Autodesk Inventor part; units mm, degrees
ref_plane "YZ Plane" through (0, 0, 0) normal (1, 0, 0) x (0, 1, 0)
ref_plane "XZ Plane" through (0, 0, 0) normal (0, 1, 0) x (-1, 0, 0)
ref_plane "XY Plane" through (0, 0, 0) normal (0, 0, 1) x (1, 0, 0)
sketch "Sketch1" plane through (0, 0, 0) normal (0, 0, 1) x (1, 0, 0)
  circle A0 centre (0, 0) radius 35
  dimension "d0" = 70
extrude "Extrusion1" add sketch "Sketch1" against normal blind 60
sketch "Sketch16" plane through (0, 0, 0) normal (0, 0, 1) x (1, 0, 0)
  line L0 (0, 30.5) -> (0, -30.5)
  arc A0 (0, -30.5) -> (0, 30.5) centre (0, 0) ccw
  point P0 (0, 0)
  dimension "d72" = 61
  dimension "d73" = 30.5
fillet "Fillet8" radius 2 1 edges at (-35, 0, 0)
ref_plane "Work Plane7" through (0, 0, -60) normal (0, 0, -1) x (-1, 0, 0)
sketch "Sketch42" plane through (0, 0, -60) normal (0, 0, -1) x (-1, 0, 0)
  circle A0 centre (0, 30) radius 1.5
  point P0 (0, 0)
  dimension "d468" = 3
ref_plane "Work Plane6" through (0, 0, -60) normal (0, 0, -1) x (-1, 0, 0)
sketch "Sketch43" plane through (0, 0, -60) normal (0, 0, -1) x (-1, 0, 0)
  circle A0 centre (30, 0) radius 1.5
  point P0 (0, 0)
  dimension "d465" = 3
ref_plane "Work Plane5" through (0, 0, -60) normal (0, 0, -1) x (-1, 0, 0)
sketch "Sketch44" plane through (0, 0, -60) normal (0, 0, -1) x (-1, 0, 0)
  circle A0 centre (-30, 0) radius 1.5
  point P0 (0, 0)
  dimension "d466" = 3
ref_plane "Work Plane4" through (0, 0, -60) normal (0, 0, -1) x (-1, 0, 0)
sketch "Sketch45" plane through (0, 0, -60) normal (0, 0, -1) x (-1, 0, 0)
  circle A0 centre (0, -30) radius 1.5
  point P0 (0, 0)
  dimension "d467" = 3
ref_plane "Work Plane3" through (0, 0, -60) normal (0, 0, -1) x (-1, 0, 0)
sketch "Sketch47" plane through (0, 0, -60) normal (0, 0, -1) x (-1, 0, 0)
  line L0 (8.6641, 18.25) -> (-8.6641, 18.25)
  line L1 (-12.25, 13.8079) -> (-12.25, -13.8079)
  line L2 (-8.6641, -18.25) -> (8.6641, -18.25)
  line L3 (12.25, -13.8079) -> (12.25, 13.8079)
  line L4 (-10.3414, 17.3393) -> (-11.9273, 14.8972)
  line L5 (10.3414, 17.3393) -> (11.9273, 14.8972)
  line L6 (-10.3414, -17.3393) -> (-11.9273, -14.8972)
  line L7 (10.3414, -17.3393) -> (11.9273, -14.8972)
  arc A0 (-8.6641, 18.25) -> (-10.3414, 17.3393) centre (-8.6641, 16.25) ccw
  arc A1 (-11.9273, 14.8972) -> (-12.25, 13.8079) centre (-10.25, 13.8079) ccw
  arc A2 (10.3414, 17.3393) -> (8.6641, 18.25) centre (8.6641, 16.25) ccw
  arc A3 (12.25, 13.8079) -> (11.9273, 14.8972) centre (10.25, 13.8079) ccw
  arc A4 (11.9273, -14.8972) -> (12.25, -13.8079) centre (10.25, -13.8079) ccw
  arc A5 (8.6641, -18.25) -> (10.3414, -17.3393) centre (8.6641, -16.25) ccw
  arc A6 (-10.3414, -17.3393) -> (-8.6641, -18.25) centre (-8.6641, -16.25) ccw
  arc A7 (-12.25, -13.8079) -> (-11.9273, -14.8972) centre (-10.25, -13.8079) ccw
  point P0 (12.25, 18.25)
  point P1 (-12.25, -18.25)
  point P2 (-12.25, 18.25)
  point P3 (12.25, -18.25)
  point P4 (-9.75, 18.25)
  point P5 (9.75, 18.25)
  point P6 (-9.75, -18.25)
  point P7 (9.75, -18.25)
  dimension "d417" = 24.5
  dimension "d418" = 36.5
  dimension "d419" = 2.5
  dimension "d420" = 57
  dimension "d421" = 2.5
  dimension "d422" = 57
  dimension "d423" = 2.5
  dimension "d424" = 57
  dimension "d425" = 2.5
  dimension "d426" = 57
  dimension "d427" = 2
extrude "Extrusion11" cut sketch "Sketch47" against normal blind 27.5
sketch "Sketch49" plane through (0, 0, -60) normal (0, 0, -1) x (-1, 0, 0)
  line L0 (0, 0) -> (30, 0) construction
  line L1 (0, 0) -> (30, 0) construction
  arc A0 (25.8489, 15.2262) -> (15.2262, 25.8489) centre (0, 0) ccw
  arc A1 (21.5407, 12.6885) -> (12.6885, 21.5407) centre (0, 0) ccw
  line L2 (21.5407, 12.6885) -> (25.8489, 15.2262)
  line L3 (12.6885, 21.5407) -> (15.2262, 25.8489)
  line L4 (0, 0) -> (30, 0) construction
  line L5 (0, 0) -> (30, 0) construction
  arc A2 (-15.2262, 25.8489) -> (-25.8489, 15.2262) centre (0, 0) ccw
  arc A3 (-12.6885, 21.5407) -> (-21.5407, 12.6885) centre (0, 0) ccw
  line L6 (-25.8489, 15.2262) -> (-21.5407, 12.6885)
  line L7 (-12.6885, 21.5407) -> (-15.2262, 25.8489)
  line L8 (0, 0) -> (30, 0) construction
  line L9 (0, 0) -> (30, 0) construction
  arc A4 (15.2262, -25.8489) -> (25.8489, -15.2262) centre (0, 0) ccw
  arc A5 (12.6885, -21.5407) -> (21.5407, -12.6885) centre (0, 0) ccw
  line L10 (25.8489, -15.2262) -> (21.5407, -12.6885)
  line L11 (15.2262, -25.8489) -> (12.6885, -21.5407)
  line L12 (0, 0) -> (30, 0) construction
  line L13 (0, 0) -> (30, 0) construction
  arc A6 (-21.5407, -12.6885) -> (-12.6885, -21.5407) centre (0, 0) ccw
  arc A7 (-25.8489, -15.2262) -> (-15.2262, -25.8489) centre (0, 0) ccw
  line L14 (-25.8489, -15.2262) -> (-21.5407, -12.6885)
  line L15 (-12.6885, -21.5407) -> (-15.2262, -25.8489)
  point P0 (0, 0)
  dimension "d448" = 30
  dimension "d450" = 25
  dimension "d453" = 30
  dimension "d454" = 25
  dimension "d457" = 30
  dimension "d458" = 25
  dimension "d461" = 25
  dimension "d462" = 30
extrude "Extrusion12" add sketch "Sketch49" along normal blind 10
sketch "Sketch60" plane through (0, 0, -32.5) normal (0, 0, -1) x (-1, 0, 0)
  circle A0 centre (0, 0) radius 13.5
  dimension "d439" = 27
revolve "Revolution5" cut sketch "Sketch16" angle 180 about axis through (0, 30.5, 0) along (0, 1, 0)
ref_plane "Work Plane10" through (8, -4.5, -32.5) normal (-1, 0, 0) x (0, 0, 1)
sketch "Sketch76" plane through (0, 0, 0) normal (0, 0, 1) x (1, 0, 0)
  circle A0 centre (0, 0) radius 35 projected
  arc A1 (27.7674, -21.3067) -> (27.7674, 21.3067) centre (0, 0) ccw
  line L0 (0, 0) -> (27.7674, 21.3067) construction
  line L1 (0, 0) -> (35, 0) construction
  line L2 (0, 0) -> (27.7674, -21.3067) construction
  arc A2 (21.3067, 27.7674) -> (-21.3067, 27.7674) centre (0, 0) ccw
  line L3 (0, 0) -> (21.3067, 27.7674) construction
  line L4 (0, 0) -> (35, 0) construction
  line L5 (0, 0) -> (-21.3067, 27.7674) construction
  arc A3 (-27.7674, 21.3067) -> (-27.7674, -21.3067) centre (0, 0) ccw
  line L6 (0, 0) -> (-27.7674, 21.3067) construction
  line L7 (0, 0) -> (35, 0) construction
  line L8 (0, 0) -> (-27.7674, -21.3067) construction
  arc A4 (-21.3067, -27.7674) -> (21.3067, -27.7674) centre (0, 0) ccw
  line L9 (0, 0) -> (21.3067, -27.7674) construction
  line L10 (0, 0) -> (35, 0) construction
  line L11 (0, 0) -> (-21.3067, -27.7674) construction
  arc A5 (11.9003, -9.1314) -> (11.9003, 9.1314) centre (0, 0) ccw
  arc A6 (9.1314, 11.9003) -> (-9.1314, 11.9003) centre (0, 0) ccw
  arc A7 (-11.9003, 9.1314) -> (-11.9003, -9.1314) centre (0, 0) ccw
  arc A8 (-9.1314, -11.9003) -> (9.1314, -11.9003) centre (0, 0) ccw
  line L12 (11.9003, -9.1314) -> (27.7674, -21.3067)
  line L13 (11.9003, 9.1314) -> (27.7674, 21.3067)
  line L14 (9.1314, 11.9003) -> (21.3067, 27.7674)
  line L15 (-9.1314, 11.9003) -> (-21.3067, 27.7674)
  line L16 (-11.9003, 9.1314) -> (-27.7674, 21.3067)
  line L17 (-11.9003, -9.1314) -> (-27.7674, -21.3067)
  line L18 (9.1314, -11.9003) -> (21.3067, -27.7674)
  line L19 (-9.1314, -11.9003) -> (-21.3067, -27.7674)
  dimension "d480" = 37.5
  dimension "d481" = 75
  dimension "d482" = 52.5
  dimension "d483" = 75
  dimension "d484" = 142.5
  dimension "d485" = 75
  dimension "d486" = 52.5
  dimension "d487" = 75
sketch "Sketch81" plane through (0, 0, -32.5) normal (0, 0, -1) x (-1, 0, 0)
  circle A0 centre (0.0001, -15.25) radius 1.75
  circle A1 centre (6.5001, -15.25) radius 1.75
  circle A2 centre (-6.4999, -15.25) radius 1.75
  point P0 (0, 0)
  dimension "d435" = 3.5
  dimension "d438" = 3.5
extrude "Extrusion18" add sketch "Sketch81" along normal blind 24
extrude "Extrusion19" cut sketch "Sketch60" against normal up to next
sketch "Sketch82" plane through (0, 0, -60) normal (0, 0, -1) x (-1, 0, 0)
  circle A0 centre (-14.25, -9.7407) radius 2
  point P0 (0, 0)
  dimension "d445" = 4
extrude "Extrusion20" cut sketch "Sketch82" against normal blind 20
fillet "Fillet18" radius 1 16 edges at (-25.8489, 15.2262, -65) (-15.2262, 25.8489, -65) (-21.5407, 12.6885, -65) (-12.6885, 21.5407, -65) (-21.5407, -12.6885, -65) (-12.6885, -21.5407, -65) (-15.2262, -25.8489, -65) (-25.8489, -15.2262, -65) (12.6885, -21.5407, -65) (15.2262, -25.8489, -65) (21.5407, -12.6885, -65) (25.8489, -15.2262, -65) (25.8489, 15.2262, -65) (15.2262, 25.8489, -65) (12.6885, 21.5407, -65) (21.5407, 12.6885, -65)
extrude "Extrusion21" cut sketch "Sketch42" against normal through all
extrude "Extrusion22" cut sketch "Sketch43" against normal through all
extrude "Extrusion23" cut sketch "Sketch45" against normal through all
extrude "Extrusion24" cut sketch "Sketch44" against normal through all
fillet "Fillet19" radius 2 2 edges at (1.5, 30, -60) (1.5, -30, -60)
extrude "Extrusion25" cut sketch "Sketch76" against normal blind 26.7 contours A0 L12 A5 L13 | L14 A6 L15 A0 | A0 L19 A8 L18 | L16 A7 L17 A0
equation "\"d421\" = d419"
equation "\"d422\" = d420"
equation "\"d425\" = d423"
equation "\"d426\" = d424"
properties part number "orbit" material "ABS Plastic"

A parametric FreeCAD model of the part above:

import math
import FreeCAD as App
import Part
import Sketcher
from FreeCAD import Vector
Q = App.Units.Quantity


def edges_at(feature, points):
    """Names of the edges that pass closest to the given points."""
    edges = feature.Shape.Edges
    near = lambda p: min(range(len(edges)), key=lambda i: edges[i].distToShape(Part.Vertex(*p))[0])
    return sorted({f"Edge{near(p) + 1}" for p in points})

doc = App.newDocument("Part")
body = doc.addObject("PartDesign::Body", "Body")

# Sketch on XY plane
sketch1 = doc.addObject("Sketcher::SketchObject", "Sketch")
body.addObject(sketch1)
sketch1.AttachmentSupport = (doc.XY_Plane, [""])
sketch1.MapMode = "FlatFace"
sketch1.addGeometry(Part.Circle(Vector(0, 0, 0), Vector(0, 0, 1), 35), False)
sketch1.addConstraint([
    Sketcher.Constraint("Coincident", 0, 3, -1, 1),
    Sketcher.Constraint("Diameter", 0, 70.0),
])
pad1 = doc.addObject("PartDesign::Pad", "Pad")
body.addObject(pad1)
pad1.Profile = sketch1
pad1.Length = 60
pad1.Reversed = True
doc.recompute()

fillet = doc.addObject("PartDesign::Fillet", "Fillet")
body.addObject(fillet)
fillet.Base = (pad1, edges_at(pad1, [(-35, 0, 0)]))
fillet.Radius = 2

# Sketch on XY plane
sketch2 = doc.addObject("Sketcher::SketchObject", "Sketch001")
body.addObject(sketch2)
sketch2.AttachmentSupport = (doc.XY_Plane, [""])
sketch2.MapMode = "FlatFace"
sketch2.AttachmentOffset = App.Placement(Vector(0, 0, -60), App.Rotation())
sketch2.addGeometry([
    Part.ArcOfCircle(Part.Circle(Vector(-8.7, 16.2, 0), Vector(0, 0, 1), 2), math.radians(90), math.radians(147)),  # 0
    Part.LineSegment(Vector(-8.7, 18.2, 0), Vector(8.7, 18.2, 0)),  # 1
    Part.ArcOfCircle(Part.Circle(Vector(8.7, 16.2, 0), Vector(0, 0, 1), 2), math.radians(33), math.radians(90)),  # 2
    Part.LineSegment(Vector(10.3, 17.3, 0), Vector(11.9, 14.9, 0)),  # 3
    Part.ArcOfCircle(Part.Circle(Vector(10.2, 13.8, 0), Vector(0, 0, 1), 2), math.radians(0), math.radians(33)),  # 4
    Part.LineSegment(Vector(12.2, 13.8, 0), Vector(12.2, -13.8, 0)),  # 5
    Part.ArcOfCircle(Part.Circle(Vector(10.2, -13.8, 0), Vector(0, 0, 1), 2), math.radians(-33), math.radians(0)),  # 6
    Part.LineSegment(Vector(11.9, -14.9, 0), Vector(10.3, -17.3, 0)),  # 7
    Part.ArcOfCircle(Part.Circle(Vector(8.7, -16.2, 0), Vector(0, 0, 1), 2), math.radians(-90), math.radians(-33)),  # 8
    Part.LineSegment(Vector(8.7, -18.2, 0), Vector(-8.7, -18.2, 0)),  # 9
    Part.ArcOfCircle(Part.Circle(Vector(-8.7, -16.2, 0), Vector(0, 0, 1), 2), math.radians(-147), math.radians(-90)),  # 10
    Part.LineSegment(Vector(-10.3, -17.3, 0), Vector(-11.9, -14.9, 0)),  # 11
    Part.ArcOfCircle(Part.Circle(Vector(-10.2, -13.8, 0), Vector(0, 0, 1), 2), math.radians(180), math.radians(213)),  # 12
    Part.LineSegment(Vector(-12.2, -13.8, 0), Vector(-12.2, 13.8, 0)),  # 13
    Part.ArcOfCircle(Part.Circle(Vector(-10.2, 13.8, 0), Vector(0, 0, 1), 2), math.radians(147), math.radians(180)),  # 14
    Part.LineSegment(Vector(-11.9, 14.9, 0), Vector(-10.3, 17.3, 0)),  # 15
], False)
sketch2.addConstraint([
    Sketcher.Constraint("Tangent", 0, 1, 1, 1),
    Sketcher.Constraint("Tangent", 1, 2, 2, 2),
    Sketcher.Constraint("Tangent", 2, 1, 3, 1),
    Sketcher.Constraint("Tangent", 3, 2, 4, 2),
    Sketcher.Constraint("Tangent", 4, 1, 5, 1),
    Sketcher.Constraint("Tangent", 5, 2, 6, 2),
    Sketcher.Constraint("Tangent", 6, 1, 7, 1),
    Sketcher.Constraint("Tangent", 7, 2, 8, 2),
    Sketcher.Constraint("Tangent", 8, 1, 9, 1),
    Sketcher.Constraint("Tangent", 9, 2, 10, 2),
    Sketcher.Constraint("Tangent", 10, 1, 11, 1),
    Sketcher.Constraint("Tangent", 11, 2, 12, 2),
    Sketcher.Constraint("Tangent", 12, 1, 13, 1),
    Sketcher.Constraint("Tangent", 13, 2, 14, 2),
    Sketcher.Constraint("Tangent", 14, 1, 15, 1),
    Sketcher.Constraint("Tangent", 15, 2, 0, 2),
    Sketcher.Constraint("Horizontal", 1),
    Sketcher.Constraint("Vertical", 5),
    Sketcher.Constraint("Horizontal", 9),
    Sketcher.Constraint("Vertical", 13),
    Sketcher.Constraint("Equal", 0, 2),
    Sketcher.Constraint("Equal", 2, 4),
    Sketcher.Constraint("Equal", 4, 6),
    Sketcher.Constraint("Equal", 6, 8),
    Sketcher.Constraint("Equal", 8, 10),
    Sketcher.Constraint("Equal", 10, 12),
    Sketcher.Constraint("Equal", 12, 14),
    Sketcher.Constraint("Symmetric", 0, 3, 8, 3, -1, 1),
    Sketcher.Constraint("Symmetric", 4, 3, 12, 3, -1, 1),
    Sketcher.Constraint("Symmetric", 7, 2, 10, 1, -2),
    Sketcher.Constraint("Symmetric", 3, 2, 14, 1, -2),
    Sketcher.Constraint("Radius", 0, 2.0),
    Sketcher.Constraint("Angle", 3, Q("-57.0003 deg")),
    Sketcher.Constraint("DistanceY", 8, 3, 2, 3, 32.5),
    Sketcher.Constraint("DistanceX", 12, 3, 6, 3, 20.5),
    Sketcher.Constraint("DistanceX", 1, 1, 1, 2, 17.3282),
])
pocket1 = doc.addObject("PartDesign::Pocket", "Pocket")
body.addObject(pocket1)
pocket1.Profile = sketch2
pocket1.Length = 27.5
pocket1.Reversed = True

# Sketch on XY plane
sketch3 = doc.addObject("Sketcher::SketchObject", "Sketch002")
body.addObject(sketch3)
sketch3.AttachmentSupport = (doc.XY_Plane, [""])
sketch3.MapMode = "FlatFace"
sketch3.AttachmentOffset = App.Placement(Vector(0, 0, -60), App.Rotation())
sketch3.addGeometry([
    Part.LineSegment(Vector(-22, 13, 0), Vector(-26, 15, 0)),  # 0
    Part.ArcOfCircle(Part.Circle(Vector(0, 0, 0), Vector(0, 0, 1), 30), math.radians(121), math.radians(149)),  # 1
    Part.LineSegment(Vector(-15, 26, 0), Vector(-13, 22, 0)),  # 2
    Part.ArcOfCircle(Part.Circle(Vector(0, 0, 0), Vector(0, 0, 1), 25), math.radians(121), math.radians(149)),  # 3
    Part.LineSegment(Vector(13, 22, 0), Vector(15, 26, 0)),  # 4
    Part.ArcOfCircle(Part.Circle(Vector(0, 0, 0), Vector(0, 0, 1), 30), math.radians(31), math.radians(59)),  # 5
    Part.LineSegment(Vector(26, 15, 0), Vector(22, 13, 0)),  # 6
    Part.ArcOfCircle(Part.Circle(Vector(0, 0, 0), Vector(0, 0, 1), 25), math.radians(31), math.radians(59)),  # 7
    Part.LineSegment(Vector(-13, -22, 0), Vector(-15, -26, 0)),  # 8
    Part.ArcOfCircle(Part.Circle(Vector(0, 0, 0), Vector(0, 0, 1), 30), math.radians(-149), math.radians(-121)),  # 9
    Part.LineSegment(Vector(-26, -15, 0), Vector(-22, -13, 0)),  # 10
    Part.ArcOfCircle(Part.Circle(Vector(0, 0, 0), Vector(0, 0, 1), 25), math.radians(-149), math.radians(-121)),  # 11
    Part.ArcOfCircle(Part.Circle(Vector(0, 0, 0), Vector(0, 0, 1), 25), math.radians(-59), math.radians(-31)),  # 12
    Part.LineSegment(Vector(22, -13, 0), Vector(26, -15, 0)),  # 13
    Part.ArcOfCircle(Part.Circle(Vector(0, 0, 0), Vector(0, 0, 1), 30), math.radians(-59), math.radians(-31)),  # 14
    Part.LineSegment(Vector(15, -26, 0), Vector(13, -22, 0)),  # 15
], False)
sketch3.addConstraint([
    Sketcher.Constraint("Coincident", 0, 2, 1, 2),
    Sketcher.Constraint("Coincident", 1, 1, 2, 1),
    Sketcher.Constraint("Coincident", 2, 2, 3, 1),
    Sketcher.Constraint("Coincident", 3, 2, 0, 1),
    Sketcher.Constraint("Coincident", 4, 2, 5, 2),
    Sketcher.Constraint("Coincident", 5, 1, 6, 1),
    Sketcher.Constraint("Coincident", 6, 2, 7, 1),
    Sketcher.Constraint("Coincident", 7, 2, 4, 1),
    Sketcher.Constraint("Coincident", 8, 2, 9, 2),
    Sketcher.Constraint("Coincident", 9, 1, 10, 1),
    Sketcher.Constraint("Coincident", 10, 2, 11, 1),
    Sketcher.Constraint("Coincident", 11, 2, 8, 1),
    Sketcher.Constraint("Coincident", 12, 2, 13, 1),
    Sketcher.Constraint("Coincident", 13, 2, 14, 2),
    Sketcher.Constraint("Coincident", 14, 1, 15, 1),
    Sketcher.Constraint("Coincident", 15, 2, 12, 1),
    Sketcher.Constraint("Coincident", 1, 3, -1, 1),
    Sketcher.Constraint("Coincident", 3, 3, -1, 1),
    Sketcher.Constraint("Coincident", 5, 3, -1, 1),
    Sketcher.Constraint("Coincident", 7, 3, -1, 1),
    Sketcher.Constraint("Coincident", 9, 3, -1, 1),
    Sketcher.Constraint("Coincident", 11, 3, -1, 1),
    Sketcher.Constraint("Coincident", 12, 3, -1, 1),
    Sketcher.Constraint("Coincident", 14, 3, -1, 1),
    Sketcher.Constraint("Equal", 1, 5),
    Sketcher.Constraint("Equal", 3, 7),
    Sketcher.Constraint("Equal", 5, 9),
    Sketcher.Constraint("Equal", 7, 11),
    Sketcher.Constraint("Equal", 11, 12),
    Sketcher.Constraint("Equal", 9, 14),
    Sketcher.Constraint("Perpendicular", 0, 4),
    Sketcher.Constraint("Perpendicular", 2, 6),
    Sketcher.Constraint("Parallel", 4, 8),
    Sketcher.Constraint("Parallel", 6, 10),
    Sketcher.Constraint("Perpendicular", 8, 13),
    Sketcher.Constraint("Perpendicular", 10, 15),
    Sketcher.Constraint("Horizontal", 1, 1, 4, 2),
    Sketcher.Constraint("Horizontal", 0, 2, 5, 1),
    Sketcher.Constraint("Horizontal", 3, 2, 6, 2),
    Sketcher.Constraint("Horizontal", 10, 2, 12, 2),
    Sketcher.Constraint("Horizontal", 8, 2, 14, 1),
    Sketcher.Constraint("Vertical", 1, 1, 8, 2),
    Sketcher.Constraint("Vertical", 0, 2, 9, 1),
    Sketcher.Constraint("Radius", 1, 30.0),
    Sketcher.Constraint("Radius", 3, 25.0),
    Sketcher.Constraint("Angle", 0, Q("149.5002 deg")),
    Sketcher.Constraint("DistanceX", 0, 2, -1, 1, 25.849),
    Sketcher.Constraint("DistanceY", -1, 1, 1, 1, 25.849),
])
pad2 = doc.addObject("PartDesign::Pad", "Pad001")
body.addObject(pad2)
pad2.Profile = sketch3
pad2.Length = 10
pad2.Reversed = True

# Sketch on XY plane
sketch4 = doc.addObject("Sketcher::SketchObject", "Sketch003")
body.addObject(sketch4)
sketch4.AttachmentSupport = (doc.XY_Plane, [""])
sketch4.MapMode = "FlatFace"
sketch4.addGeometry([
    Part.ArcOfCircle(Part.Circle(Vector(0, 0, 0), Vector(0, 0, 1), 30), math.radians(-90), math.radians(90)),
    Part.LineSegment(Vector(0, 30, 0), Vector(0, -30, 0)),
], False)
sketch4.addConstraint([
    Sketcher.Constraint("Coincident", 0, 1, 1, 2),
    Sketcher.Constraint("Coincident", 1, 1, 0, 2),
    Sketcher.Constraint("Vertical", 1),
    Sketcher.Constraint("Coincident", 0, 3, -1, 1),
    Sketcher.Constraint("PointOnObject", 0, 1, -2),
    Sketcher.Constraint("Radius", 0, 30.5),
])
groove = doc.addObject("PartDesign::Groove", "Groove")
body.addObject(groove)
groove.Profile = sketch4
groove.ReferenceAxis = (sketch4, ["V_Axis"])
groove.Angle = 180

# Sketch on XY plane
sketch5 = doc.addObject("Sketcher::SketchObject", "Sketch004")
body.addObject(sketch5)
sketch5.AttachmentSupport = (doc.XY_Plane, [""])
sketch5.MapMode = "FlatFace"
sketch5.AttachmentOffset = App.Placement(Vector(0, 0, -32.5), App.Rotation())
sketch5.addGeometry([
    Part.Circle(Vector(0, -15.2, 0), Vector(0, 0, 1), 1.8),
    Part.Circle(Vector(-6.5, -15.2, 0), Vector(0, 0, 1), 1.8),
    Part.Circle(Vector(6.5, -15.2, 0), Vector(0, 0, 1), 1.8),
], False)
sketch5.addConstraint([
    Sketcher.Constraint("Equal", 0, 1),
    Sketcher.Constraint("Equal", 1, 2),
    Sketcher.Constraint("Symmetric", 1, 3, 2, 3, -2),
    Sketcher.Constraint("PointOnObject", 0, 3, -2),
    Sketcher.Constraint("Horizontal", 0, 3, 1, 3),
    Sketcher.Constraint("Diameter", 0, 3.5),
    Sketcher.Constraint("DistanceX", 1, 3, 2, 3, 13.0),
    Sketcher.Constraint("DistanceY", 0, 3, -1, 1, 15.25),
])
pad3 = doc.addObject("PartDesign::Pad", "Pad002")
body.addObject(pad3)
pad3.Profile = sketch5
pad3.Length = 24
pad3.Reversed = True

# Sketch on XY plane
sketch6 = doc.addObject("Sketcher::SketchObject", "Sketch005")
body.addObject(sketch6)
sketch6.AttachmentSupport = (doc.XY_Plane, [""])
sketch6.MapMode = "FlatFace"
sketch6.AttachmentOffset = App.Placement(Vector(0, 0, -32.5), App.Rotation())
sketch6.addGeometry(Part.Circle(Vector(0, 0, 0), Vector(0, 0, 1), 14), False)
sketch6.addConstraint([
    Sketcher.Constraint("Coincident", 0, 3, -1, 1),
    Sketcher.Constraint("Diameter", 0, 27.0),
])
pocket2 = doc.addObject("PartDesign::Pocket", "Pocket001")
body.addObject(pocket2)
pocket2.Profile = sketch6
pocket2.Type = "UpToFirst"
pocket2.Reversed = True

# Sketch on XY plane
sketch7 = doc.addObject("Sketcher::SketchObject", "Sketch006")
body.addObject(sketch7)
sketch7.AttachmentSupport = (doc.XY_Plane, [""])
sketch7.MapMode = "FlatFace"
sketch7.AttachmentOffset = App.Placement(Vector(0, 0, -60), App.Rotation())
sketch7.addGeometry(Part.Circle(Vector(14.2, -9.7, 0), Vector(0, 0, 1), 2), False)
sketch7.addConstraint([
    Sketcher.Constraint("Diameter", 0, 4.0),
    Sketcher.Constraint("DistanceX", -1, 1, 0, 3, 14.25),
    Sketcher.Constraint("DistanceY", 0, 3, -1, 1, 9.7407),
])
pocket3 = doc.addObject("PartDesign::Pocket", "Pocket002")
body.addObject(pocket3)
pocket3.Profile = sketch7
pocket3.Length = 20
pocket3.Reversed = True
doc.recompute()

fillet2 = doc.addObject("PartDesign::Fillet", "Fillet001")
body.addObject(fillet2)
fillet2.Base = (pocket3, edges_at(pocket3, [
    (-25.849, 15.226, -65),
    (-15.226, 25.849, -65),
    (-21.541, 12.688, -65),
    (-12.688, 21.541, -65),
    (-21.541, -12.688, -65),
    (-12.688, -21.541, -65),
    (-15.226, -25.849, -65),
    (-25.849, -15.226, -65),
    (12.688, -21.541, -65),
    (15.226, -25.849, -65),
    (21.541, -12.688, -65),
    (25.849, -15.226, -65),
    (25.849, 15.226, -65),
    (15.226, 25.849, -65),
    (12.688, 21.541, -65),
    (21.541, 12.688, -65),
]))
fillet2.Radius = 1

# Sketch on XY plane
sketch8 = doc.addObject("Sketcher::SketchObject", "Sketch007")
body.addObject(sketch8)
sketch8.AttachmentSupport = (doc.XY_Plane, [""])
sketch8.MapMode = "FlatFace"
sketch8.AttachmentOffset = App.Placement(Vector(0, 0, -60), App.Rotation())
sketch8.addGeometry(Part.Circle(Vector(0, 30, 0), Vector(0, 0, 1), 1.5), False)
sketch8.addConstraint([
    Sketcher.Constraint("PointOnObject", 0, 3, -2),
    Sketcher.Constraint("Diameter", 0, 3.0),
    Sketcher.Constraint("DistanceY", -1, 1, 0, 3, 30.0),
])
pocket4 = doc.addObject("PartDesign::Pocket", "Pocket003")
body.addObject(pocket4)
pocket4.Profile = sketch8
pocket4.Type = "ThroughAll"
pocket4.Reversed = True

# Sketch on XY plane
sketch9 = doc.addObject("Sketcher::SketchObject", "Sketch008")
body.addObject(sketch9)
sketch9.AttachmentSupport = (doc.XY_Plane, [""])
sketch9.MapMode = "FlatFace"
sketch9.AttachmentOffset = App.Placement(Vector(0, 0, -60), App.Rotation())
sketch9.addGeometry(Part.Circle(Vector(-30, 0, 0), Vector(0, 0, 1), 1.5), False)
sketch9.addConstraint([
    Sketcher.Constraint("PointOnObject", 0, 3, -1),
    Sketcher.Constraint("Diameter", 0, 3.0),
    Sketcher.Constraint("DistanceX", 0, 3, -1, 1, 30.0),
])
pocket5 = doc.addObject("PartDesign::Pocket", "Pocket004")
body.addObject(pocket5)
pocket5.Profile = sketch9
pocket5.Type = "ThroughAll"
pocket5.Reversed = True

# Sketch on XY plane
sketch10 = doc.addObject("Sketcher::SketchObject", "Sketch009")
body.addObject(sketch10)
sketch10.AttachmentSupport = (doc.XY_Plane, [""])
sketch10.MapMode = "FlatFace"
sketch10.AttachmentOffset = App.Placement(Vector(0, 0, -60), App.Rotation())
sketch10.addGeometry(Part.Circle(Vector(0, -30, 0), Vector(0, 0, 1), 1.5), False)
sketch10.addConstraint([
    Sketcher.Constraint("PointOnObject", 0, 3, -2),
    Sketcher.Constraint("Diameter", 0, 3.0),
    Sketcher.Constraint("DistanceY", 0, 3, -1, 1, 30.0),
])
pocket6 = doc.addObject("PartDesign::Pocket", "Pocket005")
body.addObject(pocket6)
pocket6.Profile = sketch10
pocket6.Type = "ThroughAll"
pocket6.Reversed = True

# Sketch on XY plane
sketch11 = doc.addObject("Sketcher::SketchObject", "Sketch010")
body.addObject(sketch11)
sketch11.AttachmentSupport = (doc.XY_Plane, [""])
sketch11.MapMode = "FlatFace"
sketch11.AttachmentOffset = App.Placement(Vector(0, 0, -60), App.Rotation())
sketch11.addGeometry(Part.Circle(Vector(30, 0, 0), Vector(0, 0, 1), 1.5), False)
sketch11.addConstraint([
    Sketcher.Constraint("PointOnObject", 0, 3, -1),
    Sketcher.Constraint("Diameter", 0, 3.0),
    Sketcher.Constraint("DistanceX", -1, 1, 0, 3, 30.0),
])
pocket7 = doc.addObject("PartDesign::Pocket", "Pocket006")
body.addObject(pocket7)
pocket7.Profile = sketch11
pocket7.Type = "ThroughAll"
pocket7.Reversed = True
doc.recompute()

fillet3 = doc.addObject("PartDesign::Fillet", "Fillet002")
body.addObject(fillet3)
fillet3.Base = (pocket7, edges_at(pocket7, [(1.5, 30, -60), (1.5, -30, -60)]))
fillet3.Radius = 2

# Sketch on XY plane
sketch12 = doc.addObject("Sketcher::SketchObject", "Sketch011")
body.addObject(sketch12)
sketch12.AttachmentSupport = (doc.XY_Plane, [""])
sketch12.MapMode = "FlatFace"
sketch12.addGeometry([
    Part.ArcOfCircle(Part.Circle(Vector(0, 0, 0), Vector(0, 0, 1), 35), math.radians(-38), math.radians(38)),  # 0
    Part.LineSegment(Vector(28, 21, 0), Vector(12, 9, 0)),  # 1
    Part.ArcOfCircle(Part.Circle(Vector(0, 0, 0), Vector(0, 0, 1), 15), math.radians(-37), math.radians(37)),  # 2
    Part.LineSegment(Vector(12, -9, 0), Vector(28, -21, 0)),  # 3
    Part.LineSegment(Vector(9, 12, 0), Vector(21, 28, 0)),  # 4
    Part.ArcOfCircle(Part.Circle(Vector(0, 0, 0), Vector(0, 0, 1), 35), math.radians(52), math.radians(128)),  # 5
    Part.LineSegment(Vector(-21, 28, 0), Vector(-9, 12, 0)),  # 6
    Part.ArcOfCircle(Part.Circle(Vector(0, 0, 0), Vector(0, 0, 1), 15), math.radians(53), math.radians(127)),  # 7
    Part.ArcOfCircle(Part.Circle(Vector(0, 0, 0), Vector(0, 0, 1), 35), math.radians(-128), math.radians(-52)),  # 8
    Part.LineSegment(Vector(21, -28, 0), Vector(9, -12, 0)),  # 9
    Part.ArcOfCircle(Part.Circle(Vector(0, 0, 0), Vector(0, 0, 1), 15), math.radians(-127), math.radians(-53)),  # 10
    Part.LineSegment(Vector(-9, -12, 0), Vector(-21, -28, 0)),  # 11
    Part.LineSegment(Vector(-12, 9, 0), Vector(-28, 21, 0)),  # 12
    Part.ArcOfCircle(Part.Circle(Vector(0, 0, 0), Vector(0, 0, 1), 35), math.radians(142), math.radians(218)),  # 13
    Part.LineSegment(Vector(-28, -21, 0), Vector(-12, -9, 0)),  # 14
    Part.ArcOfCircle(Part.Circle(Vector(0, 0, 0), Vector(0, 0, 1), 15), math.radians(143), math.radians(217)),  # 15
], False)
sketch12.addConstraint([
    Sketcher.Constraint("Coincident", 0, 2, 1, 1),
    Sketcher.Constraint("Coincident", 1, 2, 2, 2),
    Sketcher.Constraint("Coincident", 2, 1, 3, 1),
    Sketcher.Constraint("Coincident", 3, 2, 0, 1),
    Sketcher.Constraint("Coincident", 4, 2, 5, 1),
    Sketcher.Constraint("Coincident", 5, 2, 6, 1),
    Sketcher.Constraint("Coincident", 6, 2, 7, 2),
    Sketcher.Constraint("Coincident", 7, 1, 4, 1),
    Sketcher.Constraint("Coincident", 8, 2, 9, 1),
    Sketcher.Constraint("Coincident", 9, 2, 10, 2),
    Sketcher.Constraint("Coincident", 10, 1, 11, 1),
    Sketcher.Constraint("Coincident", 11, 2, 8, 1),
    Sketcher.Constraint("Coincident", 12, 2, 13, 1),
    Sketcher.Constraint("Coincident", 13, 2, 14, 1),
    Sketcher.Constraint("Coincident", 14, 2, 15, 2),
    Sketcher.Constraint("Coincident", 15, 1, 12, 1),
    Sketcher.Constraint("Coincident", 0, 3, -1, 1),
    Sketcher.Constraint("Coincident", 2, 3, -1, 1),
    Sketcher.Constraint("Coincident", 5, 3, -1, 1),
    Sketcher.Constraint("Coincident", 7, 3, -1, 1),
    Sketcher.Constraint("Coincident", 8, 3, -1, 1),
    Sketcher.Constraint("Coincident", 10, 3, -1, 1),
    Sketcher.Constraint("Coincident", 13, 3, -1, 1),
    Sketcher.Constraint("Coincident", 15, 3, -1, 1),
    Sketcher.Constraint("Equal", 0, 5),
    Sketcher.Constraint("Equal", 2, 7),
    Sketcher.Constraint("Equal", 5, 8),
    Sketcher.Constraint("Equal", 7, 10),
    Sketcher.Constraint("Equal", 8, 13),
    Sketcher.Constraint("Equal", 10, 15),
    Sketcher.Constraint("Perpendicular", 3, 4),
    Sketcher.Constraint("Perpendicular", 1, 6),
    Sketcher.Constraint("Parallel", 6, 9),
    Sketcher.Constraint("Parallel", 4, 11),
    Sketcher.Constraint("Perpendicular", 11, 12),
    Sketcher.Constraint("Perpendicular", 9, 14),
    Sketcher.Constraint("Horizontal", 4, 2, 5, 2),
    Sketcher.Constraint("Horizontal", 6, 2, 7, 1),
    Sketcher.Constraint("Horizontal", 9, 2, 10, 1),
    Sketcher.Constraint("Horizontal", 0, 2, 12, 2),
    Sketcher.Constraint("Horizontal", 3, 2, 13, 2),
    Sketcher.Constraint("Vertical", 1, 2, 2, 1),
    Sketcher.Constraint("Vertical", 4, 2, 8, 2),
    Sketcher.Constraint("Angle", 1, Q("-142.5 deg")),
    Sketcher.Constraint("Radius", 0, 35.0),
    Sketcher.Constraint("Radius", 2, 15.0),
    Sketcher.Constraint("DistanceY", 3, 2, 1, 2, 30.438),
    Sketcher.Constraint("DistanceY", 1, 2, 4, 2, 18.636),
])
pocket8 = doc.addObject("PartDesign::Pocket", "Pocket007")
body.addObject(pocket8)
pocket8.Profile = sketch12
pocket8.Length = 26.7

doc.recompute()
